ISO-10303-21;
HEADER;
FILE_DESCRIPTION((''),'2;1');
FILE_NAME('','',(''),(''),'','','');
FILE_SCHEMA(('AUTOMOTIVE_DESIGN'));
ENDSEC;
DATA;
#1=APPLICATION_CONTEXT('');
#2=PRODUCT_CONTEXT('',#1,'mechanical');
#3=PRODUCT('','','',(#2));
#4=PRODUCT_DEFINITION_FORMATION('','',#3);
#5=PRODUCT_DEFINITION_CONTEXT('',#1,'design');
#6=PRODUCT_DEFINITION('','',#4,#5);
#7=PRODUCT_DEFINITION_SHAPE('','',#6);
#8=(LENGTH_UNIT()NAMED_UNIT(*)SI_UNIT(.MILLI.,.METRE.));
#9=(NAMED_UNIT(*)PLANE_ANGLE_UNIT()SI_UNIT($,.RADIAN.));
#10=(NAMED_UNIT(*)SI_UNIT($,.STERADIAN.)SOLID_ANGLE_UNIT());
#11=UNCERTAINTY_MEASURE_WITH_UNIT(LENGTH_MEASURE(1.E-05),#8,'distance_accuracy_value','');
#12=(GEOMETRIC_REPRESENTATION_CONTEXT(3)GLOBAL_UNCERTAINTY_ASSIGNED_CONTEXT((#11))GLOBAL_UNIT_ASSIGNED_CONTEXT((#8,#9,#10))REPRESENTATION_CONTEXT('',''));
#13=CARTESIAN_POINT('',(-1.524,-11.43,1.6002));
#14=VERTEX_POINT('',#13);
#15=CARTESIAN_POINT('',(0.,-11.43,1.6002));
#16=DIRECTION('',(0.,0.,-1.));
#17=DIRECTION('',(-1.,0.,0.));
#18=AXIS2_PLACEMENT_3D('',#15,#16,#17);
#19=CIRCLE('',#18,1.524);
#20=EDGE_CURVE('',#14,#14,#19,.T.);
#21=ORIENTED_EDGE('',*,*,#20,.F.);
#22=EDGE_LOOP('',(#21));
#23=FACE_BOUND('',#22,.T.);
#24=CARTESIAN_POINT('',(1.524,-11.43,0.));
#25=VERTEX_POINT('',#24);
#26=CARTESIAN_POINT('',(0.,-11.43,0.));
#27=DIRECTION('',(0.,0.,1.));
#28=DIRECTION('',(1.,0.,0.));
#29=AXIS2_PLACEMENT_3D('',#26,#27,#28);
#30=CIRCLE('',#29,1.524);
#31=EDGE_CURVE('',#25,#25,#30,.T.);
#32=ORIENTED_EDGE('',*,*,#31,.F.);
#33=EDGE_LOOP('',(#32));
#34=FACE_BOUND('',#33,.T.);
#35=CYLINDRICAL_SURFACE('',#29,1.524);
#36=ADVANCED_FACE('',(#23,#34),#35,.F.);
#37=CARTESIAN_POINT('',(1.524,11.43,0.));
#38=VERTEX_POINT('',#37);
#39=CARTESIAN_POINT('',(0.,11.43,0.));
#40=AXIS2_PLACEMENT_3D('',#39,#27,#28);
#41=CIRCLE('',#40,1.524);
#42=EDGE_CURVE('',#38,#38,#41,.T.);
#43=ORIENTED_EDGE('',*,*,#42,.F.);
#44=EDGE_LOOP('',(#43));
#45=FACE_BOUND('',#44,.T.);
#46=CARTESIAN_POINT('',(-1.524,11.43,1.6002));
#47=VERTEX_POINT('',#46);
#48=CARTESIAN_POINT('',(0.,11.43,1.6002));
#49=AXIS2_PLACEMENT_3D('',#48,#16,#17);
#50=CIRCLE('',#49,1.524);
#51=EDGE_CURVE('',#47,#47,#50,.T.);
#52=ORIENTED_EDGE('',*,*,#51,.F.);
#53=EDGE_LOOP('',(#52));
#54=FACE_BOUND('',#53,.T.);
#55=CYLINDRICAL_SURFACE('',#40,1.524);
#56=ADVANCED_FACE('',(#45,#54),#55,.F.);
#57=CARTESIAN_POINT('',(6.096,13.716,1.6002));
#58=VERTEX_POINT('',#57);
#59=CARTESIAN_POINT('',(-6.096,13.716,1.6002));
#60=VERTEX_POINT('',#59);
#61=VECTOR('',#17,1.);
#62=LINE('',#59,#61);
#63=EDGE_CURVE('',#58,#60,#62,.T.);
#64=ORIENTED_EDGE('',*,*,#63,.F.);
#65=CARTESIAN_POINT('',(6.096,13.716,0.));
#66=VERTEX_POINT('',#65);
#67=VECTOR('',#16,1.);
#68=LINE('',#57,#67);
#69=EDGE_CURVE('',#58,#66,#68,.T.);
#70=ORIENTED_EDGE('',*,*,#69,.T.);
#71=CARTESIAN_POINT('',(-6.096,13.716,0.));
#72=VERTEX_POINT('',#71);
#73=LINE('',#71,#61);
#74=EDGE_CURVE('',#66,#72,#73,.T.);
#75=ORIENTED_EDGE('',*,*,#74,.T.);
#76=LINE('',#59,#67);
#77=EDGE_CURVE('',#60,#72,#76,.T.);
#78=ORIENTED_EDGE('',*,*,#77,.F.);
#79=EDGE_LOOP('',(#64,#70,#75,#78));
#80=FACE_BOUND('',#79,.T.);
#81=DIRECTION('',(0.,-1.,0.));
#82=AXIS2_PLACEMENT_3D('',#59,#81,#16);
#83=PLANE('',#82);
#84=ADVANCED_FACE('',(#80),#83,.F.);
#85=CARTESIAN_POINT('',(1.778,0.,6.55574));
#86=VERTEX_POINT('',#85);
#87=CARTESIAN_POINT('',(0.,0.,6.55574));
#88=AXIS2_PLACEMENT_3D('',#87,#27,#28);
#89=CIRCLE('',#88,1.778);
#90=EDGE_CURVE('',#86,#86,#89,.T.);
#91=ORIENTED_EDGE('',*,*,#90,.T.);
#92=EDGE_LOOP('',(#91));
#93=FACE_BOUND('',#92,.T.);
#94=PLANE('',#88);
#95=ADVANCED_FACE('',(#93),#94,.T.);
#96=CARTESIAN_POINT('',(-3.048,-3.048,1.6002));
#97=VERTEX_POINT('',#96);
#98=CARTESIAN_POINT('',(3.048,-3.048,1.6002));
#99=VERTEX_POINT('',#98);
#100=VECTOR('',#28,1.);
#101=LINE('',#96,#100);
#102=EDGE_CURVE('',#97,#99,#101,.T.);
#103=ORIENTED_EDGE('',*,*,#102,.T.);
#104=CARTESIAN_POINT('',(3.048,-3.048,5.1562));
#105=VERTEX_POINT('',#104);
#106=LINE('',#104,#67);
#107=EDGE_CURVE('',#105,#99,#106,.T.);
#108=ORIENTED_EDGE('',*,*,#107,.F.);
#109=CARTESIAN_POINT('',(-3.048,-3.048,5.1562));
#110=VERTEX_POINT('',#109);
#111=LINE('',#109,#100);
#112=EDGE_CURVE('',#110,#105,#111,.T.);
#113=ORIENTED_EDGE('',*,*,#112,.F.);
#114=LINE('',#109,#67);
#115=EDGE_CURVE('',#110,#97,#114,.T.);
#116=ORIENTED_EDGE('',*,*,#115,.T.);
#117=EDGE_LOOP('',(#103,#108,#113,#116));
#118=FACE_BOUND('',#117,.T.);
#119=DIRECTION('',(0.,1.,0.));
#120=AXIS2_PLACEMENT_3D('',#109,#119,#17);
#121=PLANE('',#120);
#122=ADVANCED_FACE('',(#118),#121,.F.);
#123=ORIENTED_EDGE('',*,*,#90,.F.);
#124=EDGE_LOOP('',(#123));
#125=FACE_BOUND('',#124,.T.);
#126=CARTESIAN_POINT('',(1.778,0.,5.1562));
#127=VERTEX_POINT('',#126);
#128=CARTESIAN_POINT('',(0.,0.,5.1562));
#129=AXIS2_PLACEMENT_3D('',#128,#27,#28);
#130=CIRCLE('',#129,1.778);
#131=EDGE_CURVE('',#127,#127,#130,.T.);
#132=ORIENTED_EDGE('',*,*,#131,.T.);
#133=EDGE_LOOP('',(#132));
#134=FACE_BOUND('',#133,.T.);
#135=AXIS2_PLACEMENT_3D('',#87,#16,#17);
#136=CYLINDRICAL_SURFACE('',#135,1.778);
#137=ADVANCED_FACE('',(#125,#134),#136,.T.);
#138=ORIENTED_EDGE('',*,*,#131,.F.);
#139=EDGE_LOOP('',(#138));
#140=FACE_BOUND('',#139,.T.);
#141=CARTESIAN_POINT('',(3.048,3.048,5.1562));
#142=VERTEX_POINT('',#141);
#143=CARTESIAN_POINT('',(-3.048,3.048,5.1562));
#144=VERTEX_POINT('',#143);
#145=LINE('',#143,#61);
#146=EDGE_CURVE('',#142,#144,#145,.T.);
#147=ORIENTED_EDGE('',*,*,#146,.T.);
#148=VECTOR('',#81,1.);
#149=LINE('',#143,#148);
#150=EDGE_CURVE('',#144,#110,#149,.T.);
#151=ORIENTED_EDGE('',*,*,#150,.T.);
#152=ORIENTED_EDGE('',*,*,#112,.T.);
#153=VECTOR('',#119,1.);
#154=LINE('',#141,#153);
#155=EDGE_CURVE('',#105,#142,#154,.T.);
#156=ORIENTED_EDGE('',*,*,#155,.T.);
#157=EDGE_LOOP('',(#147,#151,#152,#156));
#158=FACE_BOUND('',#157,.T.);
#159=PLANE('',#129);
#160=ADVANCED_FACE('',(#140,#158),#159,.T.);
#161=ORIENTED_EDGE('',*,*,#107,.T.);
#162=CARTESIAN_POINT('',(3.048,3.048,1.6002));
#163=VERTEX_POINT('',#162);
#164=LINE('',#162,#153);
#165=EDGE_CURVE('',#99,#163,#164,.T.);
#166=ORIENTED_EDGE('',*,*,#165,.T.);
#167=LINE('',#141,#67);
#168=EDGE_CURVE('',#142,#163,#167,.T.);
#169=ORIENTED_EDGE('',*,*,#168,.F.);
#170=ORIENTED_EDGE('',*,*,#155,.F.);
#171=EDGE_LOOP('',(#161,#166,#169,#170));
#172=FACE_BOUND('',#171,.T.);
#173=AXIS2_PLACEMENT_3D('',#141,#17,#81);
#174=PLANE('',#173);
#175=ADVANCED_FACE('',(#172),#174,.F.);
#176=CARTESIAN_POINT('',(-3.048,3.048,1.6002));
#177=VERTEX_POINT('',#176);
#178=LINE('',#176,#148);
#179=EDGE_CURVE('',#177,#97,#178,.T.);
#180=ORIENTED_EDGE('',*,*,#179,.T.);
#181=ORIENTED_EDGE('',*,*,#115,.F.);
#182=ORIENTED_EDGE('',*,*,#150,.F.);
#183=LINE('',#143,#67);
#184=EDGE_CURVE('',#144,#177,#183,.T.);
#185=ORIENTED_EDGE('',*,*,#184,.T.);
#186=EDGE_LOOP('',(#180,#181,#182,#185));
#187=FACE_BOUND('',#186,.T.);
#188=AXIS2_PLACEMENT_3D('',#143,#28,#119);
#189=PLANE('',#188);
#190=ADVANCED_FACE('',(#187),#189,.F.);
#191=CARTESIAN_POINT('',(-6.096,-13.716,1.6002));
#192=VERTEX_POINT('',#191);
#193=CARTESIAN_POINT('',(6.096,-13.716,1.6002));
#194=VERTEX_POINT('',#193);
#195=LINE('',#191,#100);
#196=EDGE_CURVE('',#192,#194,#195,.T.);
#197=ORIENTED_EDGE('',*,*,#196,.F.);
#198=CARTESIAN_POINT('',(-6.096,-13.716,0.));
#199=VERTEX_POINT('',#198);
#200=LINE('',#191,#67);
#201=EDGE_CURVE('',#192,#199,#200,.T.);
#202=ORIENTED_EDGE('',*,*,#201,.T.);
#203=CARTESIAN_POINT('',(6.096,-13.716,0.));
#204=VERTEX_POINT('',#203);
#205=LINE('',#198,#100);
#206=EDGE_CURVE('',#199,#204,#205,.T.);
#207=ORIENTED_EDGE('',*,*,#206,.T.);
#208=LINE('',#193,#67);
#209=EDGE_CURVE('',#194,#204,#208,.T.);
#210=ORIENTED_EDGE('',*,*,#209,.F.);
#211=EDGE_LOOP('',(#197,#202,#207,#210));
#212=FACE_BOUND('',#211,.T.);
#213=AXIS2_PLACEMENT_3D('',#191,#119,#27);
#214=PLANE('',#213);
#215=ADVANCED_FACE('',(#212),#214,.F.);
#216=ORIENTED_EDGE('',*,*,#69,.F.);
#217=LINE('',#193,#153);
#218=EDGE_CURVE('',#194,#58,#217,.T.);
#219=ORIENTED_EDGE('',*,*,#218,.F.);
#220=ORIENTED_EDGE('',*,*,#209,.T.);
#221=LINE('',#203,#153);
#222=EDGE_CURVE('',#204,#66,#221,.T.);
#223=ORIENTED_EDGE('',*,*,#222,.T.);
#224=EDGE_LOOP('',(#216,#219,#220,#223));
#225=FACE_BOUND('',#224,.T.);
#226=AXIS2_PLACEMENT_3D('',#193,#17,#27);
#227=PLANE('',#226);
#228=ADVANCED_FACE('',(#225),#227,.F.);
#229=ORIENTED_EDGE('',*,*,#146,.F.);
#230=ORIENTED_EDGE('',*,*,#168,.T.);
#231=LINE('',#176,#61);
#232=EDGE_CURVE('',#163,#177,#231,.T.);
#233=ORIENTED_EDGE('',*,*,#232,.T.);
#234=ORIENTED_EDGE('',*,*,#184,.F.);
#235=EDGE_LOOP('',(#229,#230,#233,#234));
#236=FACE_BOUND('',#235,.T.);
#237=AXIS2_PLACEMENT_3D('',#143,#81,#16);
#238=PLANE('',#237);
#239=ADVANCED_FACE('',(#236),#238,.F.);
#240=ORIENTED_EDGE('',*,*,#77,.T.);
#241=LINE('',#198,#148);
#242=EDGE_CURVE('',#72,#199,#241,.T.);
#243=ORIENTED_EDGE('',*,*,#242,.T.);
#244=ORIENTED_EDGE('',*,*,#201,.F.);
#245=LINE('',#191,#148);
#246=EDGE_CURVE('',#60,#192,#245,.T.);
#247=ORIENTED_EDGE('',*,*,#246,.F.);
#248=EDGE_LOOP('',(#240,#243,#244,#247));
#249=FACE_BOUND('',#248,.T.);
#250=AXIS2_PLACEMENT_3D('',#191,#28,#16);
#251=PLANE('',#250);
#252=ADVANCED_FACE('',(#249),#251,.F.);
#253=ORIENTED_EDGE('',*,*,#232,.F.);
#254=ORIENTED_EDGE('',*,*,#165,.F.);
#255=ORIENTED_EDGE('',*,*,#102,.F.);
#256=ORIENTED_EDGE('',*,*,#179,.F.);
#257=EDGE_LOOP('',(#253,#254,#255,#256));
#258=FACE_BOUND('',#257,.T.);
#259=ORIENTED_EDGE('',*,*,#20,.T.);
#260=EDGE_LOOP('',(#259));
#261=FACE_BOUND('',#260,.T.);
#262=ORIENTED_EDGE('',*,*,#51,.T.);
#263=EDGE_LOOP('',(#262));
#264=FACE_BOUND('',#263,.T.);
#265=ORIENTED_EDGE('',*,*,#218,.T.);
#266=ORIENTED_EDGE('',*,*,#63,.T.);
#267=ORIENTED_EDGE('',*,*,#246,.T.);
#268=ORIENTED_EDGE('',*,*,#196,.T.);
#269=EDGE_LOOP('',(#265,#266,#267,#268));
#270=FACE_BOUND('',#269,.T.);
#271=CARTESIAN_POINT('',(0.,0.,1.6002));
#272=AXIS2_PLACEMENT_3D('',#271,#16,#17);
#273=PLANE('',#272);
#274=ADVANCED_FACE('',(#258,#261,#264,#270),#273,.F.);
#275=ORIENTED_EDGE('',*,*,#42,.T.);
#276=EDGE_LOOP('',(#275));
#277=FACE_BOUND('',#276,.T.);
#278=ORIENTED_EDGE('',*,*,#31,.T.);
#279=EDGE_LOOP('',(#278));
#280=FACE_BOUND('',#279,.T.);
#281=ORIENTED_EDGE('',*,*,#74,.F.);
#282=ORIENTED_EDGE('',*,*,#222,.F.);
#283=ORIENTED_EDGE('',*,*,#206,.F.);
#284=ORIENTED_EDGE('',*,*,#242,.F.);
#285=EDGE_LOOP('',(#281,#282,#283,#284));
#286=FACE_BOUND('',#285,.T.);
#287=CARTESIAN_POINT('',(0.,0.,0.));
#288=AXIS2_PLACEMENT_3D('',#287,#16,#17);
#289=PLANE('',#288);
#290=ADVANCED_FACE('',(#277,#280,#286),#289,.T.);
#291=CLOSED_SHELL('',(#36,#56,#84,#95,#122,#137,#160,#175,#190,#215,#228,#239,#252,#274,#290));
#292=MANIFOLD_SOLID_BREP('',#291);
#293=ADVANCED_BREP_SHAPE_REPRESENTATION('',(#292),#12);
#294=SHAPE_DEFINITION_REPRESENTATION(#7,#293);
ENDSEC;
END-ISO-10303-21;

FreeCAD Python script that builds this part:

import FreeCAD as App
import Part
import Sketcher
from FreeCAD import Vector
Q = App.Units.Quantity

doc = App.newDocument("Part")
body = doc.addObject("PartDesign::Body", "Body")

sketch1 = body.newObject("Sketcher::SketchObject", "Sketch")
sketch1.AttachmentSupport = (doc.getObject("XY_Plane"), [""])
sketch1.MapMode = "FlatFace"
sketch1.addGeometry([
    Part.LineSegment(Vector(-6, 14, 0), Vector(-6, -14, 0)),
    Part.LineSegment(Vector(-6, -14, 0), Vector(6, -14, 0)),
    Part.LineSegment(Vector(6, -14, 0), Vector(6, 14, 0)),
    Part.LineSegment(Vector(6, 14, 0), Vector(-6, 14, 0)),
], False)
sketch1.addConstraint([
    Sketcher.Constraint("Coincident", 0, 2, 1, 1),
    Sketcher.Constraint("Coincident", 1, 2, 2, 1),
    Sketcher.Constraint("Coincident", 2, 2, 3, 1),
    Sketcher.Constraint("Coincident", 3, 2, 0, 1),
    Sketcher.Constraint("Vertical", 0),
    Sketcher.Constraint("Horizontal", 1),
    Sketcher.Constraint("Vertical", 2),
    Sketcher.Constraint("Horizontal", 3),
    Sketcher.Constraint("Symmetric", 0, 2, 2, 2, -1, 1),
    Sketcher.Constraint("DistanceX", 1, 1, 1, 2, Q("0.48 in")),
    Sketcher.Constraint("DistanceY", 0, 2, 0, 1, Q("1.08 in")),
])
pad1 = body.newObject("PartDesign::Pad", "Pad")
pad1.Profile = sketch1
pad1.Length = Q("0.063 in")

sketch2 = body.newObject("Sketcher::SketchObject", "Sketch001")
sketch2.AttachmentSupport = (doc.getObject("XY_Plane"), [""])
sketch2.MapMode = "FlatFace"
sketch2.AttachmentOffset = App.Placement(Vector(0, 0, 0.063 * 25.4), App.Rotation())
sketch2.addGeometry([
    Part.LineSegment(Vector(-3, 3, 0), Vector(-3, -3, 0)),
    Part.LineSegment(Vector(-3, -3, 0), Vector(3, -3, 0)),
    Part.LineSegment(Vector(3, -3, 0), Vector(3, 3, 0)),
    Part.LineSegment(Vector(3, 3, 0), Vector(-3, 3, 0)),
], False)
sketch2.addConstraint([
    Sketcher.Constraint("Coincident", 0, 2, 1, 1),
    Sketcher.Constraint("Coincident", 1, 2, 2, 1),
    Sketcher.Constraint("Coincident", 2, 2, 3, 1),
    Sketcher.Constraint("Coincident", 3, 2, 0, 1),
    Sketcher.Constraint("Vertical", 0),
    Sketcher.Constraint("Horizontal", 1),
    Sketcher.Constraint("Vertical", 2),
    Sketcher.Constraint("Horizontal", 3),
    Sketcher.Constraint("Symmetric", 0, 2, 2, 2, -1, 1),
    Sketcher.Constraint("Equal", 3, 0),
    Sketcher.Constraint("DistanceX", 1, 1, 1, 2, Q("0.24 in")),
])
pad2 = body.newObject("PartDesign::Pad", "Pad001")
pad2.Profile = sketch2
pad2.Length = Q("0.14 in")

sketch3 = body.newObject("Sketcher::SketchObject", "Sketch002")
sketch3.AttachmentSupport = (doc.getObject("XY_Plane"), [""])
sketch3.MapMode = "FlatFace"
sketch3.AttachmentOffset = App.Placement(Vector(0, 0, 0.063 * 25.4), App.Rotation())
sketch3.addGeometry([
    Part.Circle(Vector(0, 11.4, 0), Vector(0, 0, 1), 1.5),
    Part.Circle(Vector(0, -11.4, 0), Vector(0, 0, 1), 1.5),
], False)
sketch3.addConstraint([
    Sketcher.Constraint("Equal", 0, 1),
    Sketcher.Constraint("Symmetric", 0, 3, 1, 3, -1, 1),
    Sketcher.Constraint("PointOnObject", 0, 3, -2),
    Sketcher.Constraint("Diameter", 0, Q("0.12 in")),
    Sketcher.Constraint("DistanceY", 1, 3, 0, 3, Q("0.9 in")),
])
pocket1 = body.newObject("PartDesign::Pocket", "Pocket")
pocket1.Profile = sketch3
pocket1.Type = "ThroughAll"
pocket1.Midplane = True

sketch4 = body.newObject("Sketcher::SketchObject", "Sketch003")
sketch4.AttachmentSupport = (doc.getObject("XY_Plane"), [""])
sketch4.MapMode = "FlatFace"
sketch4.AttachmentOffset = App.Placement(Vector(0, 0, 0.203 * 25.4), App.Rotation())
sketch4.addGeometry(Part.Circle(Vector(0, 0, 0), Vector(0, 0, 1), 1.8), False)
sketch4.addConstraint([
    Sketcher.Constraint("Coincident", 0, 3, -1, 1),
    Sketcher.Constraint("Diameter", 0, Q("0.14 in")),
])
pad3 = body.newObject("PartDesign::Pad", "Pad002")
pad3.Profile = sketch4
pad3.Length = Q("0.0551 in")

doc.recompute()
